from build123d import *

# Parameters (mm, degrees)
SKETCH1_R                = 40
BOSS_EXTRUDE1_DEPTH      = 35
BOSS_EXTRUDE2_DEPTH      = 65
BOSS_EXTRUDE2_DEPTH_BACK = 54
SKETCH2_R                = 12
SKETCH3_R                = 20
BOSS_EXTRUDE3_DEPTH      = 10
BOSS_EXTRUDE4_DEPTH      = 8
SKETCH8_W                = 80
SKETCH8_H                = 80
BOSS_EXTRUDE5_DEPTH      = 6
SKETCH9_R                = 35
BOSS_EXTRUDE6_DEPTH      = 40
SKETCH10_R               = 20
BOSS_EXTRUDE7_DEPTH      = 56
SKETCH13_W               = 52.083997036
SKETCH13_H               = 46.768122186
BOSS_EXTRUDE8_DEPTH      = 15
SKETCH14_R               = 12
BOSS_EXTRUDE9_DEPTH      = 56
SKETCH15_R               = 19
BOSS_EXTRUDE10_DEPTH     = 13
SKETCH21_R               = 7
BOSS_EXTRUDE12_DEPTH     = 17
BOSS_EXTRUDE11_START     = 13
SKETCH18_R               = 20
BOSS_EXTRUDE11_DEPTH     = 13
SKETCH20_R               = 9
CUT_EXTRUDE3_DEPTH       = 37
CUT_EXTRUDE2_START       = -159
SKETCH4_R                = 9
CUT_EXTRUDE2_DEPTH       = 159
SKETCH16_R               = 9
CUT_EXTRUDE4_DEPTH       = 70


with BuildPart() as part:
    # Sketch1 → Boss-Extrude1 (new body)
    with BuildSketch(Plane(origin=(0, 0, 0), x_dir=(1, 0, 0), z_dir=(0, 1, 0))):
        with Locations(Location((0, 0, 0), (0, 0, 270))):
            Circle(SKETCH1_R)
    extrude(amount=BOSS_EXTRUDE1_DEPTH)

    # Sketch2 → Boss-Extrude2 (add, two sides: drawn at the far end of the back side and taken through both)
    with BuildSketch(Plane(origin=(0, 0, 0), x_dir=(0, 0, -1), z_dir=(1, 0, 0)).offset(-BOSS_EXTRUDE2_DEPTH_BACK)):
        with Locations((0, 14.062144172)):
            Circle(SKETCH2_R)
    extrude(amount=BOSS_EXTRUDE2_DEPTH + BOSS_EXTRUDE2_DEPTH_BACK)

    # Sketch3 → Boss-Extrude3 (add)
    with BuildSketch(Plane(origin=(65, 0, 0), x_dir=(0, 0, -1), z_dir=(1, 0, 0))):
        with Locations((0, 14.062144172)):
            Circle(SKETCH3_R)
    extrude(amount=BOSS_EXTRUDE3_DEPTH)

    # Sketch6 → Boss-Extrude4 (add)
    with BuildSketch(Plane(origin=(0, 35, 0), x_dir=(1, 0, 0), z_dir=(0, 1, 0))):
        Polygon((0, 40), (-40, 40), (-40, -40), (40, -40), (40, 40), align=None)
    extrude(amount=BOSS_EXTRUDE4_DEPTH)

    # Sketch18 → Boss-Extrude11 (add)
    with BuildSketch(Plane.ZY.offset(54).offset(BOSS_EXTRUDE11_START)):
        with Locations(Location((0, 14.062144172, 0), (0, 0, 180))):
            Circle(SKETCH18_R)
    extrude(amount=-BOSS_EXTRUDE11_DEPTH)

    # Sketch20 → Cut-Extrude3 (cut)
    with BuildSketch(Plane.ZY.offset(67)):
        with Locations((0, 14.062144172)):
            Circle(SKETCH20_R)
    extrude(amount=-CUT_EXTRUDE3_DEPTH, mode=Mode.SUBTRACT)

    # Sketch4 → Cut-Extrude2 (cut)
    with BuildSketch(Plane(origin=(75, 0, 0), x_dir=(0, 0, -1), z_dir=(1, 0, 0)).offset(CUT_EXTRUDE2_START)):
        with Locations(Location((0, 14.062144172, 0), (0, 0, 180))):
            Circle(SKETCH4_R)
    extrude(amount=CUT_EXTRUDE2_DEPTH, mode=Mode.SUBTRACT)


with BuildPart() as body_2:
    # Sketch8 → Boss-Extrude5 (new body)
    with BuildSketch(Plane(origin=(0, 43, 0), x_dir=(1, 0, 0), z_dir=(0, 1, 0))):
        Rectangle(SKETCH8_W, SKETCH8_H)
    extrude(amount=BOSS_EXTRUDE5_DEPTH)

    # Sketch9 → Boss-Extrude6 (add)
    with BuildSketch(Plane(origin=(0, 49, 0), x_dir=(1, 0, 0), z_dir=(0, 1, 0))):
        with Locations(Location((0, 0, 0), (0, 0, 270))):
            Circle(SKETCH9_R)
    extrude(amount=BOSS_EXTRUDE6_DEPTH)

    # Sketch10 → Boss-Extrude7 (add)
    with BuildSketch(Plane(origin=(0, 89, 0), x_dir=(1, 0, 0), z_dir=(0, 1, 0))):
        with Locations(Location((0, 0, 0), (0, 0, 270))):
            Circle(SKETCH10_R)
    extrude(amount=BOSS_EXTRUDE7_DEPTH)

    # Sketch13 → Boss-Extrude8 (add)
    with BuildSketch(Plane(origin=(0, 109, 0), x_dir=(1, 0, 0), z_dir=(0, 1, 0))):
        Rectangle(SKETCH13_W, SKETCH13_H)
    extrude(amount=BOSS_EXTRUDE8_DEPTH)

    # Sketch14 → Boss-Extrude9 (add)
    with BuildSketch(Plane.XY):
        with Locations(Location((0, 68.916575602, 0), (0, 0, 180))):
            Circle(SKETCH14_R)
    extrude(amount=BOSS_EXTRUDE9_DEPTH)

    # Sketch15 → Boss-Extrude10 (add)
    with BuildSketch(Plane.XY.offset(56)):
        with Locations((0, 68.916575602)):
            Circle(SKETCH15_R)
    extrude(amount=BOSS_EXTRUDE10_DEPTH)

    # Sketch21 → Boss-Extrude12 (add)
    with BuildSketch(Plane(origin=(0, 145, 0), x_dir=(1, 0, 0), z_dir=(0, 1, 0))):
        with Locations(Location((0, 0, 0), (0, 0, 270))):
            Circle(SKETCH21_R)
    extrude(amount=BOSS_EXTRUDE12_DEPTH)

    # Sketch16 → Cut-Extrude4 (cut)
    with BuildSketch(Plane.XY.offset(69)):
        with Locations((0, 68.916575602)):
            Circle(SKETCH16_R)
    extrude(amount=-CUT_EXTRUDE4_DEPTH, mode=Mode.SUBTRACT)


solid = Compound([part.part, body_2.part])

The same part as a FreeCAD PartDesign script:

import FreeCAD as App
import Part
import Sketcher

V = App.Vector
Q = App.Units.Quantity

doc = App.newDocument("Part")
params = doc.addObject("Spreadsheet::Sheet", "Params")
for row, (alias, value) in enumerate([
    ("sketch1_diameter", "80 mm"),
    ("pad1_length", "35 mm"),
    ("sketch2_diameter", "24 mm"),
    ("pad2_length", "65 mm"),
    ("pad2_length2", "54 mm"),
    ("sketch3_diameter", "40 mm"),
    ("pad3_length", "10 mm"),
    ("sketch4_width", "80 mm"),
    ("pad4_length", "8 mm"),
    ("sketch5_diameter", "40 mm"),
    ("pad5_length", "13 mm"),
    ("sketch6_diameter", "18 mm"),
    ("pocket1_length", "37 mm"),
    ("sketch7_diameter", "18 mm"),
    ("pocket2_length", "159 mm"),
    ("sketch8_width", "80 mm"),
    ("pad6_length", "6 mm"),
    ("sketch9_diameter", "70 mm"),
    ("pad7_length", "40 mm"),
    ("sketch10_diameter", "40 mm"),
    ("pad8_length", "56 mm"),
    ("pad9_length", "15 mm"),
    ("sketch12_diameter", "24 mm"),
    ("pad10_length", "56 mm"),
    ("sketch13_diameter", "38 mm"),
    ("pad11_length", "13 mm"),
    ("sketch14_diameter", "14 mm"),
    ("pad12_length", "17 mm"),
    ("sketch15_diameter", "18 mm"),
    ("pocket3_length", "70 mm"),
], start=1):
    params.set(f"A{row}", alias)
    params.set(f"B{row}", "=" + value)
    params.setAlias(f"B{row}", alias)

body = doc.addObject("PartDesign::Body", "Body")

# Sketch on XZ plane
sketch1 = doc.addObject("Sketcher::SketchObject", "Sketch")
body.addObject(sketch1)
sketch1.AttachmentSupport = (doc.XZ_Plane, [""])
sketch1.MapMode = "FlatFace"
sketch1.addGeometry(Part.Circle(V(0, 0, 0), V(0, 0, 1), 40), False)
sketch1.addConstraint([
    Sketcher.Constraint("Coincident", 0, 3, -1, 1),
    Sketcher.Constraint("Diameter", 0, Q("80 mm")),
])
sketch1.setExpression("Constraints[1]", "Params.sketch1_diameter")
pad1 = doc.addObject("PartDesign::Pad", "Pad")
body.addObject(pad1)
pad1.Profile = sketch1
pad1.setExpression("Length", "Params.pad1_length")
pad1.Reversed = True

# Sketch on YZ plane
sketch2 = doc.addObject("Sketcher::SketchObject", "Sketch001")
body.addObject(sketch2)
sketch2.AttachmentSupport = (doc.YZ_Plane, [""])
sketch2.MapMode = "FlatFace"
sketch2.addGeometry(Part.Circle(V(14.062144, 0, 0), V(0, 0, 1), 12), False)
sketch2.addConstraint([
    Sketcher.Constraint("PointOnObject", 0, 3, -1),
    Sketcher.Constraint("Diameter", 0, Q("24 mm")),
    Sketcher.Constraint("DistanceX", -1, 1, 0, 3, Q("14.062144 mm")),
])
sketch2.setExpression("Constraints[1]", "Params.sketch2_diameter")
pad2 = doc.addObject("PartDesign::Pad", "Pad001")
body.addObject(pad2)
pad2.Profile = sketch2
pad2.Type = "TwoLengths"
pad2.setExpression("Length", "Params.pad2_length")
pad2.setExpression("Length2", "Params.pad2_length2")

# Sketch on YZ plane
sketch3 = doc.addObject("Sketcher::SketchObject", "Sketch002")
body.addObject(sketch3)
sketch3.AttachmentSupport = (doc.YZ_Plane, [""])
sketch3.MapMode = "FlatFace"
sketch3.AttachmentOffset = App.Placement(V(0, 0, 65), App.Rotation())
sketch3.addGeometry(Part.Circle(V(14.062144, 0, 0), V(0, 0, 1), 20), False)
sketch3.addConstraint([
    Sketcher.Constraint("PointOnObject", 0, 3, -1),
    Sketcher.Constraint("Diameter", 0, Q("40 mm")),
    Sketcher.Constraint("DistanceX", -1, 1, 0, 3, Q("14.062144 mm")),
])
sketch3.setExpression("Constraints[1]", "Params.sketch3_diameter")
pad3 = doc.addObject("PartDesign::Pad", "Pad002")
body.addObject(pad3)
pad3.Profile = sketch3
pad3.setExpression("Length", "Params.pad3_length")

# Sketch on XZ plane
sketch4 = doc.addObject("Sketcher::SketchObject", "Sketch003")
body.addObject(sketch4)
sketch4.AttachmentSupport = (doc.XZ_Plane, [""])
sketch4.MapMode = "FlatFace"
sketch4.AttachmentOffset = App.Placement(V(0, 0, -35), App.Rotation())
sketch4.addGeometry([
    Part.LineSegment(V(-40, -40, 0), V(-40, 40, 0)),
    Part.LineSegment(V(-40, 40, 0), V(40, 40, 0)),
    Part.LineSegment(V(40, 40, 0), V(40, -40, 0)),
    Part.LineSegment(V(40, -40, 0), V(-40, -40, 0)),
], False)
sketch4.addConstraint([
    Sketcher.Constraint("Coincident", 0, 2, 1, 1),
    Sketcher.Constraint("Coincident", 1, 2, 2, 1),
    Sketcher.Constraint("Coincident", 2, 2, 3, 1),
    Sketcher.Constraint("Coincident", 3, 2, 0, 1),
    Sketcher.Constraint("Vertical", 0),
    Sketcher.Constraint("Horizontal", 1),
    Sketcher.Constraint("Vertical", 2),
    Sketcher.Constraint("Horizontal", 3),
    Sketcher.Constraint("Symmetric", 0, 2, 2, 2, -1, 1),
    Sketcher.Constraint("Equal", 3, 0),
    Sketcher.Constraint("DistanceX", 1, 1, 1, 2, Q("80 mm")),
])
sketch4.setExpression("Constraints[10]", "Params.sketch4_width")
pad4 = doc.addObject("PartDesign::Pad", "Pad003")
body.addObject(pad4)
pad4.Profile = sketch4
pad4.setExpression("Length", "Params.pad4_length")
pad4.Reversed = True

# Sketch on YZ plane
sketch5 = doc.addObject("Sketcher::SketchObject", "Sketch004")
body.addObject(sketch5)
sketch5.AttachmentSupport = (doc.YZ_Plane, [""])
sketch5.MapMode = "FlatFace"
sketch5.AttachmentOffset = App.Placement(V(0, 0, -67), App.Rotation())
sketch5.addGeometry(Part.Circle(V(14.062144, 0, 0), V(0, 0, 1), 20), False)
sketch5.addConstraint([
    Sketcher.Constraint("PointOnObject", 0, 3, -1),
    Sketcher.Constraint("Diameter", 0, Q("40 mm")),
    Sketcher.Constraint("DistanceX", -1, 1, 0, 3, Q("14.062144 mm")),
])
sketch5.setExpression("Constraints[1]", "Params.sketch5_diameter")
pad5 = doc.addObject("PartDesign::Pad", "Pad004")
body.addObject(pad5)
pad5.Profile = sketch5
pad5.setExpression("Length", "Params.pad5_length")

# Sketch on YZ plane
sketch6 = doc.addObject("Sketcher::SketchObject", "Sketch005")
body.addObject(sketch6)
sketch6.AttachmentSupport = (doc.YZ_Plane, [""])
sketch6.MapMode = "FlatFace"
sketch6.AttachmentOffset = App.Placement(V(0, 0, -67), App.Rotation())
sketch6.addGeometry(Part.Circle(V(14.062144, 0, 0), V(0, 0, 1), 9), False)
sketch6.addConstraint([
    Sketcher.Constraint("PointOnObject", 0, 3, -1),
    Sketcher.Constraint("Diameter", 0, Q("18 mm")),
    Sketcher.Constraint("DistanceX", -1, 1, 0, 3, Q("14.062144 mm")),
])
sketch6.setExpression("Constraints[1]", "Params.sketch6_diameter")
pocket1 = doc.addObject("PartDesign::Pocket", "Pocket")
body.addObject(pocket1)
pocket1.Profile = sketch6
pocket1.setExpression("Length", "Params.pocket1_length")
pocket1.Reversed = True

# Sketch on YZ plane
sketch7 = doc.addObject("Sketcher::SketchObject", "Sketch006")
body.addObject(sketch7)
sketch7.AttachmentSupport = (doc.YZ_Plane, [""])
sketch7.MapMode = "FlatFace"
sketch7.AttachmentOffset = App.Placement(V(0, 0, -84), App.Rotation())
sketch7.addGeometry(Part.Circle(V(14.062144, 0, 0), V(0, 0, 1), 9), False)
sketch7.addConstraint([
    Sketcher.Constraint("PointOnObject", 0, 3, -1),
    Sketcher.Constraint("Diameter", 0, Q("18 mm")),
    Sketcher.Constraint("DistanceX", -1, 1, 0, 3, Q("14.062144 mm")),
])
sketch7.setExpression("Constraints[1]", "Params.sketch7_diameter")
pocket2 = doc.addObject("PartDesign::Pocket", "Pocket001")
body.addObject(pocket2)
pocket2.Profile = sketch7
pocket2.setExpression("Length", "Params.pocket2_length")
pocket2.Reversed = True
body2 = doc.addObject("PartDesign::Body", "Body001")

# Sketch on XZ plane
sketch8 = doc.addObject("Sketcher::SketchObject", "Sketch007")
body2.addObject(sketch8)
sketch8.AttachmentSupport = (doc.getObject("XZ_Plane001"), [""])
sketch8.MapMode = "FlatFace"
sketch8.AttachmentOffset = App.Placement(V(0, 0, -43), App.Rotation())
sketch8.addGeometry([
    Part.LineSegment(V(-40, -40, 0), V(-40, 40, 0)),
    Part.LineSegment(V(-40, 40, 0), V(40, 40, 0)),
    Part.LineSegment(V(40, 40, 0), V(40, -40, 0)),
    Part.LineSegment(V(40, -40, 0), V(-40, -40, 0)),
], False)
sketch8.addConstraint([
    Sketcher.Constraint("Coincident", 0, 2, 1, 1),
    Sketcher.Constraint("Coincident", 1, 2, 2, 1),
    Sketcher.Constraint("Coincident", 2, 2, 3, 1),
    Sketcher.Constraint("Coincident", 3, 2, 0, 1),
    Sketcher.Constraint("Vertical", 0),
    Sketcher.Constraint("Horizontal", 1),
    Sketcher.Constraint("Vertical", 2),
    Sketcher.Constraint("Horizontal", 3),
    Sketcher.Constraint("Symmetric", 0, 2, 2, 2, -1, 1),
    Sketcher.Constraint("Equal", 3, 0),
    Sketcher.Constraint("DistanceX", 1, 1, 1, 2, Q("80 mm")),
])
sketch8.setExpression("Constraints[10]", "Params.sketch8_width")
pad6 = doc.addObject("PartDesign::Pad", "Pad005")
body2.addObject(pad6)
pad6.Profile = sketch8
pad6.setExpression("Length", "Params.pad6_length")
pad6.Reversed = True

# Sketch on XZ plane
sketch9 = doc.addObject("Sketcher::SketchObject", "Sketch008")
body2.addObject(sketch9)
sketch9.AttachmentSupport = (doc.getObject("XZ_Plane001"), [""])
sketch9.MapMode = "FlatFace"
sketch9.AttachmentOffset = App.Placement(V(0, 0, -49), App.Rotation())
sketch9.addGeometry(Part.Circle(V(0, 0, 0), V(0, 0, 1), 35), False)
sketch9.addConstraint([
    Sketcher.Constraint("Coincident", 0, 3, -1, 1),
    Sketcher.Constraint("Diameter", 0, Q("70 mm")),
])
sketch9.setExpression("Constraints[1]", "Params.sketch9_diameter")
pad7 = doc.addObject("PartDesign::Pad", "Pad006")
body2.addObject(pad7)
pad7.Profile = sketch9
pad7.setExpression("Length", "Params.pad7_length")
pad7.Reversed = True

# Sketch on XZ plane
sketch10 = doc.addObject("Sketcher::SketchObject", "Sketch009")
body2.addObject(sketch10)
sketch10.AttachmentSupport = (doc.getObject("XZ_Plane001"), [""])
sketch10.MapMode = "FlatFace"
sketch10.AttachmentOffset = App.Placement(V(0, 0, -89), App.Rotation())
sketch10.addGeometry(Part.Circle(V(0, 0, 0), V(0, 0, 1), 20), False)
sketch10.addConstraint([
    Sketcher.Constraint("Coincident", 0, 3, -1, 1),
    Sketcher.Constraint("Diameter", 0, Q("40 mm")),
])
sketch10.setExpression("Constraints[1]", "Params.sketch10_diameter")
pad8 = doc.addObject("PartDesign::Pad", "Pad007")
body2.addObject(pad8)
pad8.Profile = sketch10
pad8.setExpression("Length", "Params.pad8_length")
pad8.Reversed = True

# Sketch on XZ plane
sketch11 = doc.addObject("Sketcher::SketchObject", "Sketch010")
body2.addObject(sketch11)
sketch11.AttachmentSupport = (doc.getObject("XZ_Plane001"), [""])
sketch11.MapMode = "FlatFace"
sketch11.AttachmentOffset = App.Placement(V(0, 0, -109), App.Rotation())
sketch11.addGeometry([
    Part.LineSegment(V(-26.041999, -23.384061, 0), V(-26.041999, 23.384061, 0)),
    Part.LineSegment(V(-26.041999, 23.384061, 0), V(26.041999, 23.384061, 0)),
    Part.LineSegment(V(26.041999, 23.384061, 0), V(26.041999, -23.384061, 0)),
    Part.LineSegment(V(26.041999, -23.384061, 0), V(-26.041999, -23.384061, 0)),
], False)
sketch11.addConstraint([
    Sketcher.Constraint("Coincident", 0, 2, 1, 1),
    Sketcher.Constraint("Coincident", 1, 2, 2, 1),
    Sketcher.Constraint("Coincident", 2, 2, 3, 1),
    Sketcher.Constraint("Coincident", 3, 2, 0, 1),
    Sketcher.Constraint("Vertical", 0),
    Sketcher.Constraint("Horizontal", 1),
    Sketcher.Constraint("Vertical", 2),
    Sketcher.Constraint("Horizontal", 3),
    Sketcher.Constraint("Symmetric", 0, 2, 2, 2, -1, 1),
    Sketcher.Constraint("DistanceX", 0, 2, -1, 1, Q("26.041999 mm")),
    Sketcher.Constraint("DistanceY", 0, 1, 0, 2, Q("46.768122 mm")),
])
pad9 = doc.addObject("PartDesign::Pad", "Pad008")
body2.addObject(pad9)
pad9.Profile = sketch11
pad9.setExpression("Length", "Params.pad9_length")
pad9.Reversed = True

# Sketch on XY plane
sketch12 = doc.addObject("Sketcher::SketchObject", "Sketch011")
body2.addObject(sketch12)
sketch12.AttachmentSupport = (doc.getObject("XY_Plane001"), [""])
sketch12.MapMode = "FlatFace"
sketch12.addGeometry(Part.Circle(V(0, 68.916576, 0), V(0, 0, 1), 12), False)
sketch12.addConstraint([
    Sketcher.Constraint("PointOnObject", 0, 3, -2),
    Sketcher.Constraint("Diameter", 0, Q("24 mm")),
    Sketcher.Constraint("DistanceY", -1, 1, 0, 3, Q("68.916576 mm")),
])
sketch12.setExpression("Constraints[1]", "Params.sketch12_diameter")
pad10 = doc.addObject("PartDesign::Pad", "Pad009")
body2.addObject(pad10)
pad10.Profile = sketch12
pad10.setExpression("Length", "Params.pad10_length")

# Sketch on XY plane
sketch13 = doc.addObject("Sketcher::SketchObject", "Sketch012")
body2.addObject(sketch13)
sketch13.AttachmentSupport = (doc.getObject("XY_Plane001"), [""])
sketch13.MapMode = "FlatFace"
sketch13.AttachmentOffset = App.Placement(V(0, 0, 56), App.Rotation())
sketch13.addGeometry(Part.Circle(V(0, 68.916576, 0), V(0, 0, 1), 19), False)
sketch13.addConstraint([
    Sketcher.Constraint("PointOnObject", 0, 3, -2),
    Sketcher.Constraint("Diameter", 0, Q("38 mm")),
    Sketcher.Constraint("DistanceY", -1, 1, 0, 3, Q("68.916576 mm")),
])
sketch13.setExpression("Constraints[1]", "Params.sketch13_diameter")
pad11 = doc.addObject("PartDesign::Pad", "Pad010")
body2.addObject(pad11)
pad11.Profile = sketch13
pad11.setExpression("Length", "Params.pad11_length")

# Sketch on XZ plane
sketch14 = doc.addObject("Sketcher::SketchObject", "Sketch013")
body2.addObject(sketch14)
sketch14.AttachmentSupport = (doc.getObject("XZ_Plane001"), [""])
sketch14.MapMode = "FlatFace"
sketch14.AttachmentOffset = App.Placement(V(0, 0, -145), App.Rotation())
sketch14.addGeometry(Part.Circle(V(0, 0, 0), V(0, 0, 1), 7), False)
sketch14.addConstraint([
    Sketcher.Constraint("Coincident", 0, 3, -1, 1),
    Sketcher.Constraint("Diameter", 0, Q("14 mm")),
])
sketch14.setExpression("Constraints[1]", "Params.sketch14_diameter")
pad12 = doc.addObject("PartDesign::Pad", "Pad011")
body2.addObject(pad12)
pad12.Profile = sketch14
pad12.setExpression("Length", "Params.pad12_length")
pad12.Reversed = True

# Sketch on XY plane
sketch15 = doc.addObject("Sketcher::SketchObject", "Sketch014")
body2.addObject(sketch15)
sketch15.AttachmentSupport = (doc.getObject("XY_Plane001"), [""])
sketch15.MapMode = "FlatFace"
sketch15.AttachmentOffset = App.Placement(V(0, 0, 69), App.Rotation())
sketch15.addGeometry(Part.Circle(V(0, 68.916576, 0), V(0, 0, 1), 9), False)
sketch15.addConstraint([
    Sketcher.Constraint("PointOnObject", 0, 3, -2),
    Sketcher.Constraint("Diameter", 0, Q("18 mm")),
    Sketcher.Constraint("DistanceY", -1, 1, 0, 3, Q("68.916576 mm")),
])
sketch15.setExpression("Constraints[1]", "Params.sketch15_diameter")
pocket3 = doc.addObject("PartDesign::Pocket", "Pocket002")
body2.addObject(pocket3)
pocket3.Profile = sketch15
pocket3.setExpression("Length", "Params.pocket3_length")

doc.recompute()
